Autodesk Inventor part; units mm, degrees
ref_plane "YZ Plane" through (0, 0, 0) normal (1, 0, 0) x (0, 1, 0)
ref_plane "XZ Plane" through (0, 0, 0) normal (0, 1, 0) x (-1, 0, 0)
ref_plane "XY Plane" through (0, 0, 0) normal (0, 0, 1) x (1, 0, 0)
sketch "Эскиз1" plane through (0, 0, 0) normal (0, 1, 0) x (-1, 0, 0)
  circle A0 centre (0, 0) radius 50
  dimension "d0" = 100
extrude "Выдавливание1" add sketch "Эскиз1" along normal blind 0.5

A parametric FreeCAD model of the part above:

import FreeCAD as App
import Part
import Sketcher
from FreeCAD import Vector
Q = App.Units.Quantity

doc = App.newDocument("Part")
body = doc.addObject("PartDesign::Body", "Body")

# Sketch on XZ plane
sketch1 = body.newObject("Sketcher::SketchObject", "Sketch")
sketch1.AttachmentSupport = (doc.getObject("XZ_Plane"), [""])
sketch1.MapMode = "FlatFace"
sketch1.addGeometry(Part.Circle(Vector(0, 0, 0), Vector(0, 0, 1), 50), False)
sketch1.addConstraint([
    Sketcher.Constraint("Coincident", 0, 3, -1, 1),
    Sketcher.Constraint("Diameter", 0, Q("100 mm")),
])
pad1 = body.newObject("PartDesign::Pad", "Pad")
pad1.Profile = sketch1
pad1.Length = 0.5
pad1.Reversed = True

doc.recompute()
